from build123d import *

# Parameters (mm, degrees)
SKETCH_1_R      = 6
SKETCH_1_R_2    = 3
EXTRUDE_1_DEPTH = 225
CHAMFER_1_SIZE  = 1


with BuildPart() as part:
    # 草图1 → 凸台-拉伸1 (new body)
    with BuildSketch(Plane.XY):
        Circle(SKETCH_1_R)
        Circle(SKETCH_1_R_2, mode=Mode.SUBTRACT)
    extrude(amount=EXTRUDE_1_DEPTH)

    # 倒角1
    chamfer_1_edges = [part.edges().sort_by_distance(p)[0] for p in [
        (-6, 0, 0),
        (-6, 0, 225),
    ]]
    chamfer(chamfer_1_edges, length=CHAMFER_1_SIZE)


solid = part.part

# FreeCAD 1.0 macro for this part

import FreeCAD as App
import Part
import Sketcher


def edges_at(feature, points):
    """Names of the edges that pass closest to the given points."""
    edges = feature.Shape.Edges
    near = lambda p: min(range(len(edges)), key=lambda i: edges[i].distToShape(Part.Vertex(*p))[0])
    return sorted({f"Edge{near(p) + 1}" for p in points})

doc = App.newDocument("Part")
body = doc.addObject("PartDesign::Body", "Body")

# Sketch on XY plane
sketch1 = body.newObject("Sketcher::SketchObject", "Sketch")
sketch1.AttachmentSupport = (doc.getObject("XY_Plane"), [""])
sketch1.MapMode = "FlatFace"
sketch1.addGeometry([
    Part.Circle(App.Vector(0, 0, 0), App.Vector(0, 0, 1), 6),
    Part.Circle(App.Vector(0, 0, 0), App.Vector(0, 0, 1), 3),
], False)
sketch1.addConstraint([
    Sketcher.Constraint("Coincident", 0, 3, -1, 1),
    Sketcher.Constraint("Coincident", 1, 3, -1, 1),
    Sketcher.Constraint("Diameter", 0, 12.0),
    Sketcher.Constraint("Diameter", 1, 6.0),
])
pad1 = body.newObject("PartDesign::Pad", "Pad")
pad1.Profile = sketch1
pad1.Length = 225
doc.recompute()

chamfer = body.newObject("PartDesign::Chamfer", "Chamfer")
chamfer.Base = (pad1, edges_at(pad1, [(-6, 0, 0), (-6, 0, 225)]))
chamfer.Size = 1

doc.recompute()
